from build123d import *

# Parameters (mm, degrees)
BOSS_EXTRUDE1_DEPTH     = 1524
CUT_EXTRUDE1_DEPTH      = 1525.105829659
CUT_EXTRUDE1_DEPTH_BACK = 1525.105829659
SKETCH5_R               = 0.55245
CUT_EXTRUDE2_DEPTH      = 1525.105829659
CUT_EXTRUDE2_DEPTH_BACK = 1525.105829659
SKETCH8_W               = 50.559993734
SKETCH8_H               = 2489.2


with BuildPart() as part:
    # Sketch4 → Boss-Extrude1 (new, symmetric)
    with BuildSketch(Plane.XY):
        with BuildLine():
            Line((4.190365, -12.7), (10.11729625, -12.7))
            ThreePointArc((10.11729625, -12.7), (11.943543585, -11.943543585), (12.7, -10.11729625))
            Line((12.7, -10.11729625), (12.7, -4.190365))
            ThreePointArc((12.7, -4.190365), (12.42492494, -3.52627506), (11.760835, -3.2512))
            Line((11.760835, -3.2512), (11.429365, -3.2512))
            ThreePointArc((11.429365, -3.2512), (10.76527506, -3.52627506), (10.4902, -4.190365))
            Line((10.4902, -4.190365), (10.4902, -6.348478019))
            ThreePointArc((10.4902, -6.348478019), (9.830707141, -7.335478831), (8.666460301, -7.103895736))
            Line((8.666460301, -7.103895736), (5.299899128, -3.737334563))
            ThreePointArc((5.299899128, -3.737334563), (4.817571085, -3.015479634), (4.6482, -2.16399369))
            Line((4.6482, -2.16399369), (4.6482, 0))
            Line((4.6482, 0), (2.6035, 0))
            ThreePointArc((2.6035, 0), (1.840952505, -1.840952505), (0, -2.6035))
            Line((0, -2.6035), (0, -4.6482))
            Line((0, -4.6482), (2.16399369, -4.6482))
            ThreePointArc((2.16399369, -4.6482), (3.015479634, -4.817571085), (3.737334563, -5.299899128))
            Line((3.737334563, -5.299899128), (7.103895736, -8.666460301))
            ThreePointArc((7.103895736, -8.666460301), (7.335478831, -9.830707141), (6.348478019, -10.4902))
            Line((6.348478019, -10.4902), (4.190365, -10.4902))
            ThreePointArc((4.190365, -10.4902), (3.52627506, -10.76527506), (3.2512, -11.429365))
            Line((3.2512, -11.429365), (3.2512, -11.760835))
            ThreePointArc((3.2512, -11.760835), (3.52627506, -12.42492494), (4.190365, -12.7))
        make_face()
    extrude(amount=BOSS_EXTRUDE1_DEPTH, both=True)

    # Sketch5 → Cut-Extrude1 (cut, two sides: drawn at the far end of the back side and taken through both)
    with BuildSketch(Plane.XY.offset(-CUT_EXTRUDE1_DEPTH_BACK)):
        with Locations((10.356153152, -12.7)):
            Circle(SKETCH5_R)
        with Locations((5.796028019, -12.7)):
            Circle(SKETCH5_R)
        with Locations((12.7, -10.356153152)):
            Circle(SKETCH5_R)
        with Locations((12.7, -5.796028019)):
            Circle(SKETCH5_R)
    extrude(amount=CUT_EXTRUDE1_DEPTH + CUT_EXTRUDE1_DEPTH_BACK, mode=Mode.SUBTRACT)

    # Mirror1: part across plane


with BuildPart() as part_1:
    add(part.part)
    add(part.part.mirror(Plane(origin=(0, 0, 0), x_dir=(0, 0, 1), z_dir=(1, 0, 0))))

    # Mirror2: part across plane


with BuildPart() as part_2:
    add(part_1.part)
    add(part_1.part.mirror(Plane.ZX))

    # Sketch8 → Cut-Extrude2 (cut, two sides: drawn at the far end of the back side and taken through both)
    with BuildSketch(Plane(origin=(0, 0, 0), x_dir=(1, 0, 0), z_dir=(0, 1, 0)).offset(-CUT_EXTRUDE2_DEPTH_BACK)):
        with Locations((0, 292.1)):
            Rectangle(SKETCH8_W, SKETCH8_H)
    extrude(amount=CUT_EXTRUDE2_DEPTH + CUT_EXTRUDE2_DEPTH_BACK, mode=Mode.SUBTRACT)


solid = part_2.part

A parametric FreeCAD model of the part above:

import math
import FreeCAD as App
import Part
import Sketcher
Q = App.Units.Quantity


def add_polygon(sketch, points):
    """Adds a closed chain of lines whose ends are joined by coincident constraints."""
    first, n = sketch.GeometryCount, len(points)
    for a, b in zip(points, points[1:] + points[:1]):
        sketch.addGeometry(Part.LineSegment(App.Vector(*a, 0), App.Vector(*b, 0)), False)
    for i in range(n):
        sketch.addConstraint(Sketcher.Constraint("Coincident", first + i, 2, first + (i + 1) % n, 1))

doc = App.newDocument("Part")
body = doc.addObject("PartDesign::Body", "Body")

# Sketch on XY plane
sketch1 = doc.addObject("Sketcher::SketchObject", "Sketch")
body.addObject(sketch1)
sketch1.AttachmentSupport = (doc.XY_Plane, [""])
sketch1.MapMode = "FlatFace"
sketch1.addGeometry([
    Part.LineSegment(App.Vector(4.19, -12.7, 0), App.Vector(10.12, -12.7, 0)),  # 0
    Part.ArcOfCircle(Part.Circle(App.Vector(10.12, -10.12, 0), App.Vector(0, 0, 1), 2.58), math.radians(-90), math.radians(0)),  # 1
    Part.LineSegment(App.Vector(12.7, -10.12, 0), App.Vector(12.7, -4.19, 0)),  # 2
    Part.ArcOfCircle(Part.Circle(App.Vector(11.76, -4.19, 0), App.Vector(0, 0, 1), 0.94), math.radians(0), math.radians(90)),  # 3
    Part.LineSegment(App.Vector(11.76, -3.25, 0), App.Vector(11.43, -3.25, 0)),  # 4
    Part.ArcOfCircle(Part.Circle(App.Vector(11.43, -4.19, 0), App.Vector(0, 0, 1), 0.94), math.radians(90), math.radians(180)),  # 5
    Part.LineSegment(App.Vector(10.49, -4.19, 0), App.Vector(10.49, -6.35, 0)),  # 6
    Part.ArcOfCircle(Part.Circle(App.Vector(9.42, -6.35, 0), App.Vector(0, 0, 1), 1.07), math.radians(-135), math.radians(0)),  # 7
    Part.LineSegment(App.Vector(8.67, -7.1, 0), App.Vector(5.3, -3.74, 0)),  # 8
    Part.ArcOfCircle(Part.Circle(App.Vector(6.87, -2.16, 0), App.Vector(0, 0, 1), 2.23), math.radians(-180), math.radians(-135)),  # 9
    Part.LineSegment(App.Vector(4.65, -2.16, 0), App.Vector(4.65, 0, 0)),  # 10
    Part.LineSegment(App.Vector(4.65, 0, 0), App.Vector(2.6, 0, 0)),  # 11
    Part.ArcOfCircle(Part.Circle(App.Vector(0, 0, 0), App.Vector(0, 0, 1), 2.6), math.radians(-90), math.radians(0)),  # 12
    Part.LineSegment(App.Vector(0, -2.6, 0), App.Vector(0, -4.65, 0)),  # 13
    Part.LineSegment(App.Vector(0, -4.65, 0), App.Vector(2.16, -4.65, 0)),  # 14
    Part.ArcOfCircle(Part.Circle(App.Vector(2.16, -6.87, 0), App.Vector(0, 0, 1), 2.23), math.radians(45), math.radians(90)),  # 15
    Part.LineSegment(App.Vector(3.74, -5.3, 0), App.Vector(7.1, -8.67, 0)),  # 16
    Part.ArcOfCircle(Part.Circle(App.Vector(6.35, -9.42, 0), App.Vector(0, 0, 1), 1.07), math.radians(-90), math.radians(45)),  # 17
    Part.LineSegment(App.Vector(6.35, -10.49, 0), App.Vector(4.19, -10.49, 0)),  # 18
    Part.ArcOfCircle(Part.Circle(App.Vector(4.19, -11.43, 0), App.Vector(0, 0, 1), 0.94), math.radians(90), math.radians(180)),  # 19
    Part.LineSegment(App.Vector(3.25, -11.43, 0), App.Vector(3.25, -11.76, 0)),  # 20
    Part.ArcOfCircle(Part.Circle(App.Vector(4.19, -11.76, 0), App.Vector(0, 0, 1), 0.94), math.radians(-180), math.radians(-90)),  # 21
], False)
sketch1.addConstraint([
    Sketcher.Constraint("Tangent", 0, 2, 1, 1),
    Sketcher.Constraint("Tangent", 1, 2, 2, 1),
    Sketcher.Constraint("Tangent", 2, 2, 3, 1),
    Sketcher.Constraint("Tangent", 3, 2, 4, 1),
    Sketcher.Constraint("Tangent", 4, 2, 5, 1),
    Sketcher.Constraint("Tangent", 5, 2, 6, 1),
    Sketcher.Constraint("Tangent", 6, 2, 7, 2),
    Sketcher.Constraint("Tangent", 7, 1, 8, 1),
    Sketcher.Constraint("Tangent", 8, 2, 9, 2),
    Sketcher.Constraint("Tangent", 9, 1, 10, 1),
    Sketcher.Constraint("Coincident", 10, 2, 11, 1),
    Sketcher.Constraint("Coincident", 11, 2, 12, 2),
    Sketcher.Constraint("Coincident", 12, 1, 13, 1),
    Sketcher.Constraint("Coincident", 13, 2, 14, 1),
    Sketcher.Constraint("Tangent", 14, 2, 15, 2),
    Sketcher.Constraint("Tangent", 15, 1, 16, 1),
    Sketcher.Constraint("Tangent", 16, 2, 17, 2),
    Sketcher.Constraint("Tangent", 17, 1, 18, 1),
    Sketcher.Constraint("Tangent", 18, 2, 19, 1),
    Sketcher.Constraint("Tangent", 19, 2, 20, 1),
    Sketcher.Constraint("Tangent", 20, 2, 21, 1),
    Sketcher.Constraint("Tangent", 21, 2, 0, 1),
    Sketcher.Constraint("Horizontal", 0),
    Sketcher.Constraint("Vertical", 2),
    Sketcher.Constraint("Horizontal", 4),
    Sketcher.Constraint("Vertical", 6),
    Sketcher.Constraint("Vertical", 10),
    Sketcher.Constraint("Horizontal", 11),
    Sketcher.Constraint("Vertical", 13),
    Sketcher.Constraint("Horizontal", 14),
    Sketcher.Constraint("Horizontal", 18),
    Sketcher.Constraint("Vertical", 20),
    Sketcher.Constraint("Coincident", 12, 3, -1, 1),
    Sketcher.Constraint("Equal", 3, 5),
    Sketcher.Constraint("Equal", 9, 15),
    Sketcher.Constraint("Equal", 7, 17),
    Sketcher.Constraint("Equal", 5, 19),
    Sketcher.Constraint("Equal", 19, 21),
    Sketcher.Constraint("PointOnObject", 10, 2, -1),
    Sketcher.Constraint("PointOnObject", 12, 1, -2),
    Sketcher.Constraint("Parallel", 8, 16),
    Sketcher.Constraint("Equal", 0, 2),
    Sketcher.Constraint("Equal", 18, 6),
    Sketcher.Constraint("Equal", 14, 10),
    Sketcher.Constraint("Equal", 11, 13),
    Sketcher.Constraint("Equal", 4, 20),
    Sketcher.Constraint("Equal", 8, 16),
    Sketcher.Constraint("DistanceY", 0, 2, -1, 1, Q("0.5 in")),
    Sketcher.Constraint("Radius", 9, Q("0.0876 in")),
    Sketcher.Constraint("Radius", 12, Q("0.1025 in")),
    Sketcher.Constraint("DistanceX", 9, 1, 5, 2, Q("0.23 in")),
    Sketcher.Constraint("DistanceX", 11, 2, 11, 1, Q("0.0805 in")),
    Sketcher.Constraint("DistanceY", 3, 2, -1, 1, Q("0.128 in")),
    Sketcher.Constraint("Radius", 7, 1.068322),
    Sketcher.Constraint("DistanceX", 17, 3, 7, 3, Q("0.121 in")),
    Sketcher.Constraint("Radius", 1, 2.582704),
    Sketcher.Constraint("Radius", 3, 0.939165),
])
pad1 = doc.addObject("PartDesign::Pad", "Pad")
body.addObject(pad1)
pad1.Profile = sketch1
pad1.Length = Q("120 in")
pad1.Midplane = True

# Sketch on XY plane
sketch2 = doc.addObject("Sketcher::SketchObject", "Sketch001")
body.addObject(sketch2)
sketch2.AttachmentSupport = (doc.XY_Plane, [""])
sketch2.MapMode = "FlatFace"
sketch2.addGeometry([
    Part.Circle(App.Vector(10.4, -12.7, 0), App.Vector(0, 0, 1), 0.6),
    Part.Circle(App.Vector(5.8, -12.7, 0), App.Vector(0, 0, 1), 0.6),
    Part.Circle(App.Vector(12.7, -10.4, 0), App.Vector(0, 0, 1), 0.6),
    Part.Circle(App.Vector(12.7, -5.8, 0), App.Vector(0, 0, 1), 0.6),
], False)
sketch2.addConstraint([
    Sketcher.Constraint("Equal", 0, 1),
    Sketcher.Constraint("Equal", 1, 2),
    Sketcher.Constraint("Equal", 2, 3),
    Sketcher.Constraint("Horizontal", 0, 3, 1, 3),
    Sketcher.Constraint("Vertical", 2, 3, 3, 3),
    Sketcher.Constraint("Diameter", 0, Q("0.0435 in")),
    Sketcher.Constraint("DistanceY", 0, 3, -1, 1, Q("0.5 in")),
    Sketcher.Constraint("DistanceX", -1, 1, 2, 3, Q("0.5 in")),
    Sketcher.Constraint("DistanceX", -1, 1, 1, 3, 5.796028),
    Sketcher.Constraint("DistanceY", 3, 3, -1, 1, 5.796028),
    Sketcher.Constraint("DistanceX", -1, 1, 0, 3, 10.356153),
    Sketcher.Constraint("DistanceY", 2, 3, -1, 1, 10.356153),
])
pocket1 = doc.addObject("PartDesign::Pocket", "Pocket")
body.addObject(pocket1)
pocket1.Profile = sketch2
pocket1.Type = "ThroughAll"
pocket1.Midplane = True
body2 = doc.addObject("PartDesign::Body", "Body001")
doc.recompute()

body2.BaseFeature = body
doc.recompute()

mirroring = doc.addObject("Part::Mirroring", "Mirroring")
mirroring.Source = body
mirroring.Base = App.Vector(0, 0, 0)
mirroring.Normal = App.Vector(1, 0, 0)
body3 = doc.addObject("PartDesign::Body", "Body002")
body3.BaseFeature = mirroring
boolean = doc.addObject("PartDesign::Boolean", "Boolean")
body2.addObject(boolean)
boolean.Type = "Fuse"
boolean.addObjects([body3])
doc.recompute()
body4 = doc.addObject("PartDesign::Body", "Body003")
doc.recompute()

body4.BaseFeature = body2
doc.recompute()

mirroring2 = doc.addObject("Part::Mirroring", "Mirroring001")
mirroring2.Source = body2
mirroring2.Base = App.Vector(0, 0, 0)
mirroring2.Normal = App.Vector(0, 1, 0)
body5 = doc.addObject("PartDesign::Body", "Body004")
body5.BaseFeature = mirroring2
boolean2 = doc.addObject("PartDesign::Boolean", "Boolean001")
body4.addObject(boolean2)
boolean2.Type = "Fuse"
boolean2.addObjects([body5])
doc.recompute()

# Sketch on XZ plane
sketch3 = doc.addObject("Sketcher::SketchObject", "Sketch002")
body4.addObject(sketch3)
sketch3.AttachmentSupport = (doc.getObject("XZ_Plane003"), [""])
sketch3.MapMode = "FlatFace"
add_polygon(sketch3, [(-25, -1537), (-25, 952), (25, 952), (25, -1537)])  # lines 0-3
sketch3.addConstraint([
    Sketcher.Constraint("Vertical", 0),
    Sketcher.Constraint("Horizontal", 1),
    Sketcher.Constraint("Vertical", 2),
    Sketcher.Constraint("Horizontal", 3),
    Sketcher.Constraint("DistanceY", 0, 1, 0, 2, Q("98 in")),
    Sketcher.Constraint("DistanceY", -1, 1, 0, 2, Q("37.5 in")),
    Sketcher.Constraint("DistanceX", 1, 1, 1, 2, 50.559994),
    Sketcher.Constraint("DistanceX", 0, 2, -1, 1, 25.279997),
])
pocket2 = doc.addObject("PartDesign::Pocket", "Pocket001")
body4.addObject(pocket2)
pocket2.Profile = sketch3
pocket2.Type = "ThroughAll"
pocket2.Midplane = True
mirroring.Visibility = False
mirroring2.Visibility = False

doc.recompute()
